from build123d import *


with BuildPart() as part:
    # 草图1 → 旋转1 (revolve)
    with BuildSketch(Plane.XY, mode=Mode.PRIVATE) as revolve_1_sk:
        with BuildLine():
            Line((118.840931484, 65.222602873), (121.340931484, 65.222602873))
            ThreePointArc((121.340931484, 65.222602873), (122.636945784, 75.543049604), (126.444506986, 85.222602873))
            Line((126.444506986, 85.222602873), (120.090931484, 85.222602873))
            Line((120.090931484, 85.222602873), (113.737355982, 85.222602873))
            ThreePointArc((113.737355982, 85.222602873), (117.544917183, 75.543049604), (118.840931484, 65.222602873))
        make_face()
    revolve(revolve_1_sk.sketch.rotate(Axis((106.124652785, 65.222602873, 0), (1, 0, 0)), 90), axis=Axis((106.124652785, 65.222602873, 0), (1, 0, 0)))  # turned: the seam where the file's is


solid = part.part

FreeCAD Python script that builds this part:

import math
import FreeCAD as App
import Part
import Sketcher
Q = App.Units.Quantity

doc = App.newDocument("Part")
params = doc.addObject("Spreadsheet::Sheet", "Params")
for row, (alias, value) in enumerate([
    ("sketch1_radius", "41.74 mm"),
    ("sketch1_width", "2.5 mm"),
    ("revolution_angle", "360 deg"),
], start=1):
    params.set(f"A{row}", alias)
    params.set(f"B{row}", "=" + value)
    params.setAlias(f"B{row}", alias)

body = doc.addObject("PartDesign::Body", "Body")

# Sketch on XY plane
sketch1 = body.newObject("Sketcher::SketchObject", "Sketch")
sketch1.AttachmentSupport = (doc.getObject("XY_Plane"), [""])
sketch1.MapMode = "FlatFace"
sketch1.addGeometry([
    Part.LineSegment(App.Vector(118.8, 65.2, 0), App.Vector(121.3, 65.2, 0)),
    Part.ArcOfCircle(Part.Circle(App.Vector(163.1, 65.2, 0), App.Vector(0, 0, 1), 41.7), math.radians(151), math.radians(180)),
    Part.LineSegment(App.Vector(126.4, 85.2, 0), App.Vector(113.7, 85.2, 0)),
    Part.ArcOfCircle(Part.Circle(App.Vector(77.1, 65.2, 0), App.Vector(0, 0, 1), 41.7), math.radians(0), math.radians(29)),
], False)
sketch1.addGeometry(Part.LineSegment(App.Vector(77.1, 65.2, 0), App.Vector(163.1, 65.2, 0)), True)  # axis
sketch1.addConstraint([
    Sketcher.Constraint("Coincident", 0, 2, 1, 2),
    Sketcher.Constraint("Coincident", 1, 1, 2, 1),
    Sketcher.Constraint("Coincident", 2, 2, 3, 2),
    Sketcher.Constraint("Coincident", 3, 1, 0, 1),
    Sketcher.Constraint("Horizontal", 0),
    Sketcher.Constraint("Horizontal", 2),
    Sketcher.Constraint("Horizontal", 4),
    Sketcher.Constraint("Coincident", 4, 1, 3, 3),
    Sketcher.Constraint("Coincident", 4, 2, 1, 3),
    Sketcher.Constraint("Equal", 1, 3),
    Sketcher.Constraint("Horizontal", 3, 3, 0, 2),
    Sketcher.Constraint("Radius", 1, Q("41.74 mm")),
    Sketcher.Constraint("DistanceX", 0, 1, 0, 2, Q("2.5 mm")),
    Sketcher.Constraint("DistanceY", 0, 2, 1, 1, Q("20 mm")),
    Sketcher.Constraint("DistanceX", -1, 1, 1, 3, Q("163.080931 mm")),
    Sketcher.Constraint("DistanceY", -1, 1, 1, 3, Q("65.222603 mm")),
])
sketch1.setExpression("Constraints[11]", "Params.sketch1_radius")
sketch1.setExpression("Constraints[12]", "Params.sketch1_width")
revolution = body.newObject("PartDesign::Revolution", "Revolution")
revolution.Profile = sketch1
revolution.ReferenceAxis = (sketch1, ["Axis0"])
revolution.setExpression("Angle", "Params.revolution_angle")

doc.recompute()
